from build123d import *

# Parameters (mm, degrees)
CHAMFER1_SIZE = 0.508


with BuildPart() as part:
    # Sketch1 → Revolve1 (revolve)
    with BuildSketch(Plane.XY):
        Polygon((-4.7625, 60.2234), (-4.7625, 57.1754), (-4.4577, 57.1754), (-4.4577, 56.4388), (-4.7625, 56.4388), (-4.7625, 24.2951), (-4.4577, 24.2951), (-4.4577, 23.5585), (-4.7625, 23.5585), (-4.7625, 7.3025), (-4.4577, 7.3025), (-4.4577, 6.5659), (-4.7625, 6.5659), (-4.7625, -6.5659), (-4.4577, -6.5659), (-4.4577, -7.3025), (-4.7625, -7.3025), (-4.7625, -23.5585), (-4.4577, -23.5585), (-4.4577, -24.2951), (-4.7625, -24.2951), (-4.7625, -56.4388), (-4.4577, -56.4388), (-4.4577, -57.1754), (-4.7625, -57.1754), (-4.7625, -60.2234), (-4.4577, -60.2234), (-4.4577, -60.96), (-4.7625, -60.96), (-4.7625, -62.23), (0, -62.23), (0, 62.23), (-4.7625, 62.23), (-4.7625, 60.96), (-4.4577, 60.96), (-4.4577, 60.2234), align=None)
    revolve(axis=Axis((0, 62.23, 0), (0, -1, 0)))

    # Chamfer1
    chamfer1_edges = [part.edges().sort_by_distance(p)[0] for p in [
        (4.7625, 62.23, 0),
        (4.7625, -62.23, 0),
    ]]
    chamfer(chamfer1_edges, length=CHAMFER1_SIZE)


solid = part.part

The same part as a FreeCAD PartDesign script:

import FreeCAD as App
import Part
import Sketcher
Q = App.Units.Quantity


def edges_at(feature, points):
    """Names of the edges that pass closest to the given points."""
    edges = feature.Shape.Edges
    near = lambda p: min(range(len(edges)), key=lambda i: edges[i].distToShape(Part.Vertex(*p))[0])
    return sorted({f"Edge{near(p) + 1}" for p in points})

doc = App.newDocument("Part")
body = doc.addObject("PartDesign::Body", "Body")

# Sketch on XY plane
sketch1 = doc.addObject("Sketcher::SketchObject", "Sketch")
body.addObject(sketch1)
sketch1.AttachmentSupport = (doc.XY_Plane, [""])
sketch1.MapMode = "FlatFace"
sketch1.addGeometry([
    Part.LineSegment(App.Vector(-4.7625, 60.2234, 0), App.Vector(-4.7625, 57.1754, 0)),  # 0
    Part.LineSegment(App.Vector(-4.7625, 57.1754, 0), App.Vector(-4.4577, 57.1754, 0)),  # 1
    Part.LineSegment(App.Vector(-4.4577, 57.1754, 0), App.Vector(-4.4577, 56.4388, 0)),  # 2
    Part.LineSegment(App.Vector(-4.4577, 56.4388, 0), App.Vector(-4.7625, 56.4388, 0)),  # 3
    Part.LineSegment(App.Vector(-4.7625, 56.4388, 0), App.Vector(-4.7625, 24.2951, 0)),  # 4
    Part.LineSegment(App.Vector(-4.7625, 24.2951, 0), App.Vector(-4.4577, 24.2951, 0)),  # 5
    Part.LineSegment(App.Vector(-4.4577, 24.2951, 0), App.Vector(-4.4577, 23.5585, 0)),  # 6
    Part.LineSegment(App.Vector(-4.4577, 23.5585, 0), App.Vector(-4.7625, 23.5585, 0)),  # 7
    Part.LineSegment(App.Vector(-4.7625, 23.5585, 0), App.Vector(-4.7625, 7.3025, 0)),  # 8
    Part.LineSegment(App.Vector(-4.7625, 7.3025, 0), App.Vector(-4.4577, 7.3025, 0)),  # 9
    Part.LineSegment(App.Vector(-4.4577, 7.3025, 0), App.Vector(-4.4577, 6.5659, 0)),  # 10
    Part.LineSegment(App.Vector(-4.4577, 6.5659, 0), App.Vector(-4.7625, 6.5659, 0)),  # 11
    Part.LineSegment(App.Vector(-4.7625, 6.5659, 0), App.Vector(-4.7625, -6.5659, 0)),  # 12
    Part.LineSegment(App.Vector(-4.7625, -6.5659, 0), App.Vector(-4.4577, -6.5659, 0)),  # 13
    Part.LineSegment(App.Vector(-4.4577, -6.5659, 0), App.Vector(-4.4577, -7.3025, 0)),  # 14
    Part.LineSegment(App.Vector(-4.4577, -7.3025, 0), App.Vector(-4.7625, -7.3025, 0)),  # 15
    Part.LineSegment(App.Vector(-4.7625, -7.3025, 0), App.Vector(-4.7625, -23.5585, 0)),  # 16
    Part.LineSegment(App.Vector(-4.7625, -23.5585, 0), App.Vector(-4.4577, -23.5585, 0)),  # 17
    Part.LineSegment(App.Vector(-4.4577, -23.5585, 0), App.Vector(-4.4577, -24.2951, 0)),  # 18
    Part.LineSegment(App.Vector(-4.4577, -24.2951, 0), App.Vector(-4.7625, -24.2951, 0)),  # 19
    Part.LineSegment(App.Vector(-4.7625, -24.2951, 0), App.Vector(-4.7625, -56.4388, 0)),  # 20
    Part.LineSegment(App.Vector(-4.7625, -56.4388, 0), App.Vector(-4.4577, -56.4388, 0)),  # 21
    Part.LineSegment(App.Vector(-4.4577, -56.4388, 0), App.Vector(-4.4577, -57.1754, 0)),  # 22
    Part.LineSegment(App.Vector(-4.4577, -57.1754, 0), App.Vector(-4.7625, -57.1754, 0)),  # 23
    Part.LineSegment(App.Vector(-4.7625, -57.1754, 0), App.Vector(-4.7625, -60.2234, 0)),  # 24
    Part.LineSegment(App.Vector(-4.7625, -60.2234, 0), App.Vector(-4.4577, -60.2234, 0)),  # 25
    Part.LineSegment(App.Vector(-4.4577, -60.2234, 0), App.Vector(-4.4577, -60.96, 0)),  # 26
    Part.LineSegment(App.Vector(-4.4577, -60.96, 0), App.Vector(-4.7625, -60.96, 0)),  # 27
    Part.LineSegment(App.Vector(-4.7625, -60.96, 0), App.Vector(-4.7625, -62.23, 0)),  # 28
    Part.LineSegment(App.Vector(-4.7625, -62.23, 0), App.Vector(0, -62.23, 0)),  # 29
    Part.LineSegment(App.Vector(0, -62.23, 0), App.Vector(0, 62.23, 0)),  # 30
    Part.LineSegment(App.Vector(0, 62.23, 0), App.Vector(-4.7625, 62.23, 0)),  # 31
    Part.LineSegment(App.Vector(-4.7625, 62.23, 0), App.Vector(-4.7625, 60.96, 0)),  # 32
    Part.LineSegment(App.Vector(-4.7625, 60.96, 0), App.Vector(-4.4577, 60.96, 0)),  # 33
    Part.LineSegment(App.Vector(-4.4577, 60.96, 0), App.Vector(-4.4577, 60.2234, 0)),  # 34
    Part.LineSegment(App.Vector(-4.4577, 60.2234, 0), App.Vector(-4.7625, 60.2234, 0)),  # 35
], False)
sketch1.addConstraint([
    Sketcher.Constraint("Coincident", 0, 2, 1, 1),
    Sketcher.Constraint("Coincident", 1, 2, 2, 1),
    Sketcher.Constraint("Coincident", 2, 2, 3, 1),
    Sketcher.Constraint("Coincident", 3, 2, 4, 1),
    Sketcher.Constraint("Coincident", 4, 2, 5, 1),
    Sketcher.Constraint("Coincident", 5, 2, 6, 1),
    Sketcher.Constraint("Coincident", 6, 2, 7, 1),
    Sketcher.Constraint("Coincident", 7, 2, 8, 1),
    Sketcher.Constraint("Coincident", 8, 2, 9, 1),
    Sketcher.Constraint("Coincident", 9, 2, 10, 1),
    Sketcher.Constraint("Coincident", 10, 2, 11, 1),
    Sketcher.Constraint("Coincident", 11, 2, 12, 1),
    Sketcher.Constraint("Coincident", 12, 2, 13, 1),
    Sketcher.Constraint("Coincident", 13, 2, 14, 1),
    Sketcher.Constraint("Coincident", 14, 2, 15, 1),
    Sketcher.Constraint("Coincident", 15, 2, 16, 1),
    Sketcher.Constraint("Coincident", 16, 2, 17, 1),
    Sketcher.Constraint("Coincident", 17, 2, 18, 1),
    Sketcher.Constraint("Coincident", 18, 2, 19, 1),
    Sketcher.Constraint("Coincident", 19, 2, 20, 1),
    Sketcher.Constraint("Coincident", 20, 2, 21, 1),
    Sketcher.Constraint("Coincident", 21, 2, 22, 1),
    Sketcher.Constraint("Coincident", 22, 2, 23, 1),
    Sketcher.Constraint("Coincident", 23, 2, 24, 1),
    Sketcher.Constraint("Coincident", 24, 2, 25, 1),
    Sketcher.Constraint("Coincident", 25, 2, 26, 1),
    Sketcher.Constraint("Coincident", 26, 2, 27, 1),
    Sketcher.Constraint("Coincident", 27, 2, 28, 1),
    Sketcher.Constraint("Coincident", 28, 2, 29, 1),
    Sketcher.Constraint("Coincident", 29, 2, 30, 1),
    Sketcher.Constraint("Coincident", 30, 2, 31, 1),
    Sketcher.Constraint("Coincident", 31, 2, 32, 1),
    Sketcher.Constraint("Coincident", 32, 2, 33, 1),
    Sketcher.Constraint("Coincident", 33, 2, 34, 1),
    Sketcher.Constraint("Coincident", 34, 2, 35, 1),
    Sketcher.Constraint("Coincident", 35, 2, 0, 1),
    Sketcher.Constraint("Vertical", 0),
    Sketcher.Constraint("Horizontal", 1),
    Sketcher.Constraint("Vertical", 2),
    Sketcher.Constraint("Horizontal", 3),
    Sketcher.Constraint("Vertical", 4),
    Sketcher.Constraint("Horizontal", 5),
    Sketcher.Constraint("Vertical", 6),
    Sketcher.Constraint("Horizontal", 7),
    Sketcher.Constraint("Vertical", 8),
    Sketcher.Constraint("Horizontal", 9),
    Sketcher.Constraint("Vertical", 10),
    Sketcher.Constraint("Horizontal", 11),
    Sketcher.Constraint("Vertical", 12),
    Sketcher.Constraint("Horizontal", 13),
    Sketcher.Constraint("Vertical", 14),
    Sketcher.Constraint("Horizontal", 15),
    Sketcher.Constraint("Vertical", 16),
    Sketcher.Constraint("Horizontal", 17),
    Sketcher.Constraint("Vertical", 18),
    Sketcher.Constraint("Horizontal", 19),
    Sketcher.Constraint("Vertical", 20),
    Sketcher.Constraint("Horizontal", 21),
    Sketcher.Constraint("Vertical", 22),
    Sketcher.Constraint("Horizontal", 23),
    Sketcher.Constraint("Vertical", 24),
    Sketcher.Constraint("Horizontal", 25),
    Sketcher.Constraint("Vertical", 26),
    Sketcher.Constraint("Horizontal", 27),
    Sketcher.Constraint("Vertical", 28),
    Sketcher.Constraint("Horizontal", 29),
    Sketcher.Constraint("Vertical", 30),
    Sketcher.Constraint("Horizontal", 31),
    Sketcher.Constraint("Vertical", 32),
    Sketcher.Constraint("Horizontal", 33),
    Sketcher.Constraint("Vertical", 34),
    Sketcher.Constraint("Horizontal", 35),
    Sketcher.Constraint("Symmetric", 29, 2, 30, 2, -1, 1),
    Sketcher.Constraint("Symmetric", 10, 2, 13, 2, -1),
    Sketcher.Constraint("Symmetric", 8, 2, 15, 2, -1),
    Sketcher.Constraint("Symmetric", 6, 2, 17, 2, -1),
    Sketcher.Constraint("Symmetric", 4, 2, 19, 2, -1),
    Sketcher.Constraint("Symmetric", 2, 2, 21, 2, -1),
    Sketcher.Constraint("Symmetric", 0, 2, 23, 2, -1),
    Sketcher.Constraint("Symmetric", 27, 2, 32, 2, -1),
    Sketcher.Constraint("Symmetric", 25, 2, 34, 2, -1),
    Sketcher.Constraint("Vertical", 0, 2, 3, 2),
    Sketcher.Constraint("Vertical", 2, 2, 5, 2),
    Sketcher.Constraint("Vertical", 4, 2, 7, 2),
    Sketcher.Constraint("Vertical", 6, 2, 9, 2),
    Sketcher.Constraint("Vertical", 8, 2, 11, 2),
    Sketcher.Constraint("Vertical", 22, 2, 25, 2),
    Sketcher.Constraint("Vertical", 24, 2, 27, 2),
    Sketcher.Constraint("Equal", 2, 6),
    Sketcher.Constraint("Equal", 6, 10),
    Sketcher.Constraint("Equal", 22, 26),
    Sketcher.Constraint("DistanceY", 30, 1, 30, 2, Q("4.9 in")),
    Sketcher.Constraint("DistanceY", 0, 2, 0, 1, Q("0.12 in")),
    Sketcher.Constraint("DistanceY", 8, 2, 8, 1, Q("0.64 in")),
    Sketcher.Constraint("DistanceY", 28, 2, 28, 1, Q("0.05 in")),
    Sketcher.Constraint("DistanceX", 1, 1, 1, 2, Q("0.012 in")),
    Sketcher.Constraint("DistanceX", 29, 1, 29, 2, Q("0.1875 in")),
    Sketcher.Constraint("DistanceY", 2, 2, 2, 1, Q("0.029 in")),
    Sketcher.Constraint("DistanceY", 12, 2, 12, 1, Q("0.517 in")),
])
revolution = doc.addObject("PartDesign::Revolution", "Revolution")
body.addObject(revolution)
revolution.Profile = sketch1
revolution.ReferenceAxis = (sketch1, ["V_Axis"])
revolution.Angle = 360
doc.recompute()

chamfer = doc.addObject("PartDesign::Chamfer", "Chamfer")
body.addObject(chamfer)
chamfer.Base = (revolution, edges_at(revolution, [(4.763, 62.23, 0), (4.763, -62.23, 0)]))
chamfer.Size = Q("0.02 in")

doc.recompute()
